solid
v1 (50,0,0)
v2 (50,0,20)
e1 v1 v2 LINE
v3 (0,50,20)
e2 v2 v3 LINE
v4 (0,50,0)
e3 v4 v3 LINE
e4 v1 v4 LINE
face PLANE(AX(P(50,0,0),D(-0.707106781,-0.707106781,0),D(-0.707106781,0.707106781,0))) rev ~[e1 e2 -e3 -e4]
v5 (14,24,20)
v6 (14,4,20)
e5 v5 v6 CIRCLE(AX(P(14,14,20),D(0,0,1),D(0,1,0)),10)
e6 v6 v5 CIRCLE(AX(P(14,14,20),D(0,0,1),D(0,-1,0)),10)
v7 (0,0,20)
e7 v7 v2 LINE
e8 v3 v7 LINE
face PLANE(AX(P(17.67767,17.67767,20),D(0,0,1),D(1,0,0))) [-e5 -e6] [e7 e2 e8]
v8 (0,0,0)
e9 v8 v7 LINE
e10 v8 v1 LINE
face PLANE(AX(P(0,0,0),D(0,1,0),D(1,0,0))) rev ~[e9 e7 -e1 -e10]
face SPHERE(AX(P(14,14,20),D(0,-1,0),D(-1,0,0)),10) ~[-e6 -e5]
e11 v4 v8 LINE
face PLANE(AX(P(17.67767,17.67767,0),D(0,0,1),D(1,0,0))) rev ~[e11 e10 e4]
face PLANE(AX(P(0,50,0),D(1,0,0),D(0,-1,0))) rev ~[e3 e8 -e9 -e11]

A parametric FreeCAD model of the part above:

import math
import FreeCAD as App
import Part
import Sketcher
Q = App.Units.Quantity


def add_polygon(sketch, points):
    """Adds a closed chain of lines whose ends are joined by coincident constraints."""
    first, n = sketch.GeometryCount, len(points)
    for a, b in zip(points, points[1:] + points[:1]):
        sketch.addGeometry(Part.LineSegment(App.Vector(*a, 0), App.Vector(*b, 0)), False)
    for i in range(n):
        sketch.addConstraint(Sketcher.Constraint("Coincident", first + i, 2, first + (i + 1) % n, 1))

doc = App.newDocument("Part")
params = doc.addObject("Spreadsheet::Sheet", "Params")
for row, (alias, value) in enumerate([
    ("sketch1_width", "50 mm"),
    ("pad1_length", "20 mm"),
    ("sketch2_radius", "10 mm"),
    ("revolution_angle", "360 deg"),
], start=1):
    params.set(f"A{row}", alias)
    params.set(f"B{row}", "=" + value)
    params.setAlias(f"B{row}", alias)

body = doc.addObject("PartDesign::Body", "Body")

# Sketch on XY plane
sketch1 = body.newObject("Sketcher::SketchObject", "Sketch")
sketch1.AttachmentSupport = (doc.getObject("XY_Plane"), [""])
sketch1.MapMode = "FlatFace"
add_polygon(sketch1, [(0, 50), (0, 0), (50, 0)])  # lines 0-2
sketch1.addConstraint([
    Sketcher.Constraint("Vertical", 0),
    Sketcher.Constraint("Horizontal", 1),
    Sketcher.Constraint("Coincident", 0, 2, -1, 1),
    Sketcher.Constraint("Equal", 1, 0),
    Sketcher.Constraint("DistanceX", 1, 1, 1, 2, Q("50 mm")),
])
sketch1.setExpression("Constraints[7]", "Params.sketch1_width")
pad1 = body.newObject("PartDesign::Pad", "Pad")
pad1.Profile = sketch1
pad1.setExpression("Length", "Params.pad1_length")

# Sketch on XY plane
sketch2 = body.newObject("Sketcher::SketchObject", "Sketch001")
sketch2.AttachmentSupport = (doc.getObject("XY_Plane"), [""])
sketch2.MapMode = "FlatFace"
sketch2.AttachmentOffset = App.Placement(App.Vector(0, 0, 20), App.Rotation())
sketch2.addGeometry([
    Part.LineSegment(App.Vector(14, 4, 0), App.Vector(14, 24, 0)),
    Part.ArcOfCircle(Part.Circle(App.Vector(14, 14, 0), App.Vector(0, 0, 1), 10), math.radians(90), math.radians(270)),
], False)
sketch2.addGeometry(Part.LineSegment(App.Vector(14, 4, 0), App.Vector(14, 24, 0)), True)  # axis
sketch2.addConstraint([
    Sketcher.Constraint("Coincident", 0, 1, 1, 2),
    Sketcher.Constraint("Coincident", 1, 1, 0, 2),
    Sketcher.Constraint("Vertical", 0),
    Sketcher.Constraint("Vertical", 2),
    Sketcher.Constraint("Coincident", 2, 1, 0, 1),
    Sketcher.Constraint("Vertical", 1, 3, 0, 1),
    Sketcher.Constraint("Equal", 0, 2),
    Sketcher.Constraint("Radius", 1, Q("10 mm")),
    Sketcher.Constraint("DistanceX", -1, 1, 1, 3, Q("14 mm")),
    Sketcher.Constraint("DistanceY", -1, 1, 1, 3, Q("14 mm")),
])
sketch2.setExpression("Constraints[7]", "Params.sketch2_radius")
revolution = body.newObject("PartDesign::Revolution", "Revolution")
revolution.Profile = sketch2
revolution.ReferenceAxis = (sketch2, ["Axis0"])
revolution.setExpression("Angle", "Params.revolution_angle")

doc.recompute()
